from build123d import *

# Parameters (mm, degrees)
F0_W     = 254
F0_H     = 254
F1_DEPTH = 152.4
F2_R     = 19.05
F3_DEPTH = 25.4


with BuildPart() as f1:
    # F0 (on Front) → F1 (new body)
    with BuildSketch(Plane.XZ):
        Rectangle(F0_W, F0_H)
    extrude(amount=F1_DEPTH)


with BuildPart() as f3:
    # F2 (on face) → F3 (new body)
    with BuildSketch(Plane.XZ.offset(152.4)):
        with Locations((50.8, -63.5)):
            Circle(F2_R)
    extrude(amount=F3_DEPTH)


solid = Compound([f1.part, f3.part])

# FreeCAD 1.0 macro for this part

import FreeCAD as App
import Part
import Sketcher
Q = App.Units.Quantity


def add_polygon(sketch, points):
    """Adds a closed chain of lines whose ends are joined by coincident constraints."""
    first, n = sketch.GeometryCount, len(points)
    for a, b in zip(points, points[1:] + points[:1]):
        sketch.addGeometry(Part.LineSegment(App.Vector(*a, 0), App.Vector(*b, 0)), False)
    for i in range(n):
        sketch.addConstraint(Sketcher.Constraint("Coincident", first + i, 2, first + (i + 1) % n, 1))

doc = App.newDocument("Part")
params = doc.addObject("Spreadsheet::Sheet", "Params")
for row, (alias, value) in enumerate([
    ("sketch1_width", "10 in"),
    ("pad1_length", "6 in"),
    ("sketch2_diameter", "1.5 in"),
    ("pad2_length", "1 in"),
], start=1):
    params.set(f"A{row}", alias)
    params.set(f"B{row}", "=" + value)
    params.setAlias(f"B{row}", alias)

body = doc.addObject("PartDesign::Body", "Body")

sketch1 = doc.addObject("Sketcher::SketchObject", "Sketch")
body.addObject(sketch1)
sketch1.AttachmentSupport = (doc.XZ_Plane, [""])
sketch1.MapMode = "FlatFace"
add_polygon(sketch1, [(-127, 127), (-127, -127), (127, -127), (127, 127)])
sketch1.addConstraint(Sketcher.Constraint("Vertical", 0))
sketch1.addConstraint(Sketcher.Constraint("Horizontal", 1))
sketch1.addConstraint(Sketcher.Constraint("Vertical", 2))
sketch1.addConstraint(Sketcher.Constraint("Horizontal", 3))
sketch1.addConstraint(Sketcher.Constraint("Symmetric", 0, 2, 2, 2, -1, 1))
sketch1.addConstraint(Sketcher.Constraint("Equal", 3, 0))
sketch1.addConstraint(Sketcher.Constraint("DistanceX", 1, 1, 1, 2, Q("10 in")))
sketch1.setExpression("Constraints[10]", "Params.sketch1_width")
pad1 = doc.addObject("PartDesign::Pad", "Pad")
body.addObject(pad1)
pad1.Profile = sketch1
pad1.setExpression("Length", "Params.pad1_length")
body2 = doc.addObject("PartDesign::Body", "Body001")

sketch2 = doc.addObject("Sketcher::SketchObject", "Sketch001")
body2.addObject(sketch2)
sketch2.AttachmentSupport = (doc.getObject("XZ_Plane001"), [""])
sketch2.MapMode = "FlatFace"
sketch2.AttachmentOffset = App.Placement(App.Vector(0, 0, 6 * 25.4), App.Rotation())
sketch2.addGeometry(Part.Circle(App.Vector(51, -64, 0), App.Vector(0, 0, 1), 19), False)
sketch2.addConstraint(Sketcher.Constraint("Diameter", 0, Q("1.5 in")))
sketch2.addConstraint(Sketcher.Constraint("DistanceX", -1, 1, 0, 3, Q("2 in")))
sketch2.addConstraint(Sketcher.Constraint("DistanceY", 0, 3, -1, 1, Q("2.5 in")))
sketch2.setExpression("Constraints[0]", "Params.sketch2_diameter")
pad2 = doc.addObject("PartDesign::Pad", "Pad001")
body2.addObject(pad2)
pad2.Profile = sketch2
pad2.setExpression("Length", "Params.pad2_length")

doc.recompute()
